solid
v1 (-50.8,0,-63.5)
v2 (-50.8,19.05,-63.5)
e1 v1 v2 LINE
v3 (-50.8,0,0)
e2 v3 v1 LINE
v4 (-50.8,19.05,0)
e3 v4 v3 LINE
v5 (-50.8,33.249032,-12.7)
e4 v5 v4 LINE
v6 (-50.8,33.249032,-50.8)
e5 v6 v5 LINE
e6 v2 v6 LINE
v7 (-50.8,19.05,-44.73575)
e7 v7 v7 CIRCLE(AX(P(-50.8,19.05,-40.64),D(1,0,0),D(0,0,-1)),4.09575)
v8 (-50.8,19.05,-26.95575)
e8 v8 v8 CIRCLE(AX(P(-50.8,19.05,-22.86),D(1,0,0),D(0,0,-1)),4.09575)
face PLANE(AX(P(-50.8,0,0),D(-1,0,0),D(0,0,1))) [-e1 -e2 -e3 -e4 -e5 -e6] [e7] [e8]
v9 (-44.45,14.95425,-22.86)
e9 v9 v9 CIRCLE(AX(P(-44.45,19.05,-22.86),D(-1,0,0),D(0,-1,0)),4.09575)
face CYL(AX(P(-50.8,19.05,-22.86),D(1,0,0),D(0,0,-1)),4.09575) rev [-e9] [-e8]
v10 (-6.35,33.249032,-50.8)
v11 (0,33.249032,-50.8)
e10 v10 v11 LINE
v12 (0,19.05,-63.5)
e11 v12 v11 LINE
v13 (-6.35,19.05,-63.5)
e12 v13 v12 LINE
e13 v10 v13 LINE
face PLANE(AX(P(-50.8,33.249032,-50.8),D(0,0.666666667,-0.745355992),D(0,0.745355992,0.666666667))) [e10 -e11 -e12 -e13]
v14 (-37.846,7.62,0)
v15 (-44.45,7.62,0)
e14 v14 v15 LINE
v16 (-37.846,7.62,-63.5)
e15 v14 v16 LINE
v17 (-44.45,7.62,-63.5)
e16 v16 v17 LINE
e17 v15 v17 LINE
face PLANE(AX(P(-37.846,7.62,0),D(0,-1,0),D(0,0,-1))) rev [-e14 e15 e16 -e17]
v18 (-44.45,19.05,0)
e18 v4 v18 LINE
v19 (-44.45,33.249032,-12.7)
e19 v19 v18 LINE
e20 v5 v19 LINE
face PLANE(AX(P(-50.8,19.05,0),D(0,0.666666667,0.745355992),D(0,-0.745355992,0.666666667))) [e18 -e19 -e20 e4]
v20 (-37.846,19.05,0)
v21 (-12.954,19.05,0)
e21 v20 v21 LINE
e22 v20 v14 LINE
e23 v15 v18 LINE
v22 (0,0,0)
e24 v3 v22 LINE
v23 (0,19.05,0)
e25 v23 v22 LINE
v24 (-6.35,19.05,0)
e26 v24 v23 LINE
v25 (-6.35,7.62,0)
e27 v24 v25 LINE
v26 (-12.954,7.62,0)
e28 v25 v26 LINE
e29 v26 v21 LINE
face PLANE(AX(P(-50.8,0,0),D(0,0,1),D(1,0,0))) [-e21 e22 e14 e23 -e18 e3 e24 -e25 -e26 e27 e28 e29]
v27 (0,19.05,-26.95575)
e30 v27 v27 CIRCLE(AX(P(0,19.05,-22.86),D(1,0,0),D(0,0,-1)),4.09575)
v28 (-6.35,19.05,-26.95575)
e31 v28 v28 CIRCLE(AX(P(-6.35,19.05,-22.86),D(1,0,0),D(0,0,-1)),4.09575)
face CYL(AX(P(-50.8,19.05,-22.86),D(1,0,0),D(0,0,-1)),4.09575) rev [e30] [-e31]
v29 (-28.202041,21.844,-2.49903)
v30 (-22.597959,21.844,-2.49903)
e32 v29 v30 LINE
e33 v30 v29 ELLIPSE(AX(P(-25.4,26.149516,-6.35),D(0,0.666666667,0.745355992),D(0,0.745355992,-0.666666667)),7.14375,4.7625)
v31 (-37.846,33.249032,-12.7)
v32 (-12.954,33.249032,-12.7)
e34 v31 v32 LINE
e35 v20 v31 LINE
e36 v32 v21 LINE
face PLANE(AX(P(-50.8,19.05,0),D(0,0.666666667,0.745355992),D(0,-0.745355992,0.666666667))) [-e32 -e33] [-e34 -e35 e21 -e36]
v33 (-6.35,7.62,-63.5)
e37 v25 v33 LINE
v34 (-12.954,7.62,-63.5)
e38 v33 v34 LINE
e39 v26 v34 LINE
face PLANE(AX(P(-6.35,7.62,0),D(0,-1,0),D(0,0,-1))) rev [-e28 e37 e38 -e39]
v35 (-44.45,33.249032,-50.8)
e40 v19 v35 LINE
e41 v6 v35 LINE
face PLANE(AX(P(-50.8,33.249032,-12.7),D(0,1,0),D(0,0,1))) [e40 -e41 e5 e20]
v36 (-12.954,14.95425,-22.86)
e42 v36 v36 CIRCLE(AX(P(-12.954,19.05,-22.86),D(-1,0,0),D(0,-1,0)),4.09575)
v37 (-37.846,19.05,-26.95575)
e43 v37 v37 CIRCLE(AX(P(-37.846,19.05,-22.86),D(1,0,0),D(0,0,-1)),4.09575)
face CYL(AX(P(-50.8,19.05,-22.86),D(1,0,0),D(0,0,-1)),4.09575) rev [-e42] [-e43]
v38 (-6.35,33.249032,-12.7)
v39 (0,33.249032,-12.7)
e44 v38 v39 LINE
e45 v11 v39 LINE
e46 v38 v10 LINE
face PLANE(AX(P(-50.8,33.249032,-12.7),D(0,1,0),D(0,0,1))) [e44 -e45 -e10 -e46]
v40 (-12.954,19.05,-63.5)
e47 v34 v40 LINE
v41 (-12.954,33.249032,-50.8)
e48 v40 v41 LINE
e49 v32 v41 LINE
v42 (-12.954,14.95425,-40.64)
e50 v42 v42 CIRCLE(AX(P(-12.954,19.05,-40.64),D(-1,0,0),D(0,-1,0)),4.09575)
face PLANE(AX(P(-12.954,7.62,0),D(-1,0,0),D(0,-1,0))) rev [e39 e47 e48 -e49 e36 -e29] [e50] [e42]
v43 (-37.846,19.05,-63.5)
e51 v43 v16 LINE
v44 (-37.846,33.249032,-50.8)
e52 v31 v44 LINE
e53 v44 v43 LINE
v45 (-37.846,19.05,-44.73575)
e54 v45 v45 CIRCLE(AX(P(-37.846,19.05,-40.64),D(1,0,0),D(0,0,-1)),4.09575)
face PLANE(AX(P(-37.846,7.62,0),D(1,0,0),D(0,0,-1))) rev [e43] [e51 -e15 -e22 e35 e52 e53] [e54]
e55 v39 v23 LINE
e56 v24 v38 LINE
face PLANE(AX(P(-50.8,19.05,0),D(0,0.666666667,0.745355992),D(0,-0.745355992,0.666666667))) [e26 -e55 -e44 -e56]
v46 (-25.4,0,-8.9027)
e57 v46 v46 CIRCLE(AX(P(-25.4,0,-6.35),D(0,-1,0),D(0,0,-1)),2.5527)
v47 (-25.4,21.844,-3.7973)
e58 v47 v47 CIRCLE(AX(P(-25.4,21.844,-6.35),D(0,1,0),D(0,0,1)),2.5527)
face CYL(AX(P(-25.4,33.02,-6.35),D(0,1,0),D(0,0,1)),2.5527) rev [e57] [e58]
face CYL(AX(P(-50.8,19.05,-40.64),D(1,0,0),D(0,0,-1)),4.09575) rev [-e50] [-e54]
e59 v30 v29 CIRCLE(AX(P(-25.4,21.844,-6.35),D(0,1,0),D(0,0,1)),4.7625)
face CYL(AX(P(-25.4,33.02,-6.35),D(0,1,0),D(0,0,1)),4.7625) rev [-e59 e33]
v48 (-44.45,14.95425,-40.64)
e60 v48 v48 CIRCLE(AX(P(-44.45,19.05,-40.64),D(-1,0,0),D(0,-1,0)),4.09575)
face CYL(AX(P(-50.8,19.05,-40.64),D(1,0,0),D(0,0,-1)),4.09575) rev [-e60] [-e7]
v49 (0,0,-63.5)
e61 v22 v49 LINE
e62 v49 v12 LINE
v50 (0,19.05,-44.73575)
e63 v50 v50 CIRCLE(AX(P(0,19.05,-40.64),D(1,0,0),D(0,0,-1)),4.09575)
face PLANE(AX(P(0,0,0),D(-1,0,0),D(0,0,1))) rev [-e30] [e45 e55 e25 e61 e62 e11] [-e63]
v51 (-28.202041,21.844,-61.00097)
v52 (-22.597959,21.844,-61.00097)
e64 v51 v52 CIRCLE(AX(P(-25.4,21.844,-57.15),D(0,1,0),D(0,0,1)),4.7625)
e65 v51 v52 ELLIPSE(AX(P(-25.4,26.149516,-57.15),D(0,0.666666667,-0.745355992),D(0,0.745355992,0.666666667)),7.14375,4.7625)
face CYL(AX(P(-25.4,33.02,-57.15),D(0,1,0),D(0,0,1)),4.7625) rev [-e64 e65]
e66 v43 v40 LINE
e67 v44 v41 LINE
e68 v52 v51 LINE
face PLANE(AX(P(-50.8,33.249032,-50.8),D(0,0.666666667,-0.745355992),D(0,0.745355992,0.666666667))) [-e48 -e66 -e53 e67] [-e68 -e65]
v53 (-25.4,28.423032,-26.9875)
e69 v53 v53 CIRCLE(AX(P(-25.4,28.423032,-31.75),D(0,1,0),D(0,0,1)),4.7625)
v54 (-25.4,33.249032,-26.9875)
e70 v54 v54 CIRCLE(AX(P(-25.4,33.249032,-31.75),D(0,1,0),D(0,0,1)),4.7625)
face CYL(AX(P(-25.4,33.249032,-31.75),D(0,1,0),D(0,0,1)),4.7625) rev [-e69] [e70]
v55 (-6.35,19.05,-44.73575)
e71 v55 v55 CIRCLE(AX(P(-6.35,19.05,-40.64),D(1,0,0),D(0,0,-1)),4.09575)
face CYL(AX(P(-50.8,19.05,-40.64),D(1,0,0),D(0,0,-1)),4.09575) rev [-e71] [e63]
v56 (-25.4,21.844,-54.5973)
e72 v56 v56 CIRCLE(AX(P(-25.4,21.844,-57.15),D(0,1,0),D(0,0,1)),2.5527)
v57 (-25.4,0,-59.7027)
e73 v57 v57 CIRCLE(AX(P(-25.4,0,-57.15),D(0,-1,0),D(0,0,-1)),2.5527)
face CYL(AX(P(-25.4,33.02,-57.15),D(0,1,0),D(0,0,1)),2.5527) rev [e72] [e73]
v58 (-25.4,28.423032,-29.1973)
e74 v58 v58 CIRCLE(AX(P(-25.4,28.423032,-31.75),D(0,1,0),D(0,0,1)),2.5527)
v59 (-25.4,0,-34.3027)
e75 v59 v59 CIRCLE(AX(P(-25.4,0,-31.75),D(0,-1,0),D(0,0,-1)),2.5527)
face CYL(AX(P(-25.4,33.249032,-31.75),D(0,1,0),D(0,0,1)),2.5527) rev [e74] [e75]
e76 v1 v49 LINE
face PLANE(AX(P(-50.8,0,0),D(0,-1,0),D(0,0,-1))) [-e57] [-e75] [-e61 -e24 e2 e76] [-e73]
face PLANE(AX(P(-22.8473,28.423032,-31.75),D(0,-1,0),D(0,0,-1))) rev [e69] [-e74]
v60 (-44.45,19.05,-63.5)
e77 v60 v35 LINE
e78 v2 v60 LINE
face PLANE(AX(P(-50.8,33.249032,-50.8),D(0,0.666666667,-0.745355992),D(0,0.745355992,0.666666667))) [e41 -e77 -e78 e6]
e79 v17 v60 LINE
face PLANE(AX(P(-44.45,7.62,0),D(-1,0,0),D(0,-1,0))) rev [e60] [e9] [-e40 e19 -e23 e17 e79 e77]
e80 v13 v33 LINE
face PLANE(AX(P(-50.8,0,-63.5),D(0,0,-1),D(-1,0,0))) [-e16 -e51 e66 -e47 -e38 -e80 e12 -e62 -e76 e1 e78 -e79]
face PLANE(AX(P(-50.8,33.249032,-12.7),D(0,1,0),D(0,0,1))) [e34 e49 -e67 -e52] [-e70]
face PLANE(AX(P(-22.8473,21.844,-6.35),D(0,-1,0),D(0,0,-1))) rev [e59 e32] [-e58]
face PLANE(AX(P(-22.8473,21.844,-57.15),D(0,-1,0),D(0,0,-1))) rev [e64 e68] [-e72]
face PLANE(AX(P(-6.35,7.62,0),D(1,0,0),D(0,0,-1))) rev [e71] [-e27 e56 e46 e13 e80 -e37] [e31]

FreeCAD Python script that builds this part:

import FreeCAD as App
import Part
import Sketcher
from FreeCAD import Vector
Q = App.Units.Quantity


def add_polygon(sketch, points):
    """Adds a closed chain of lines whose ends are joined by coincident constraints."""
    first, n = sketch.GeometryCount, len(points)
    for a, b in zip(points, points[1:] + points[:1]):
        sketch.addGeometry(Part.LineSegment(App.Vector(*a, 0), App.Vector(*b, 0)), False)
    for i in range(n):
        sketch.addConstraint(Sketcher.Constraint("Coincident", first + i, 2, first + (i + 1) % n, 1))

doc = App.newDocument("Part")
body = doc.addObject("PartDesign::Body", "Body")

# Sketch on YZ plane
sketch1 = body.newObject("Sketcher::SketchObject", "Sketch")
sketch1.AttachmentSupport = (doc.getObject("YZ_Plane"), [""])
sketch1.MapMode = "FlatFace"
add_polygon(sketch1, [(6, 0), (0, 0), (0, -64), (6, -64)])  # lines 0-3
sketch1.addConstraint(Sketcher.Constraint("Horizontal", 0))
sketch1.addConstraint(Sketcher.Constraint("Vertical", 1))
sketch1.addConstraint(Sketcher.Constraint("Horizontal", 2))
sketch1.addConstraint(Sketcher.Constraint("Vertical", 3))
sketch1.addConstraint(Sketcher.Constraint("Coincident", 0, 2, -1, 1))
sketch1.addConstraint(Sketcher.Constraint("DistanceY", 1, 2, 1, 1, Q("2.5 in")))
sketch1.addConstraint(Sketcher.Constraint("DistanceX", 0, 2, 0, 1, Q("0.25 in")))
pad1 = body.newObject("PartDesign::Pad", "Pad")
pad1.Profile = sketch1
pad1.Length = Q("2 in")
pad1.Reversed = True

# Sketch on YZ plane
sketch2 = body.newObject("Sketcher::SketchObject", "Sketch001")
sketch2.AttachmentSupport = (doc.getObject("YZ_Plane"), [""])
sketch2.MapMode = "FlatFace"
add_polygon(sketch2, [(19, 0), (6, 0), (6, -64), (19, -64), (33, -51), (33, -13)])  # lines 0-5
sketch2.addConstraint(Sketcher.Constraint("Horizontal", 0))
sketch2.addConstraint(Sketcher.Constraint("Vertical", 1))
sketch2.addConstraint(Sketcher.Constraint("Horizontal", 2))
sketch2.addConstraint(Sketcher.Constraint("Vertical", 4))
sketch2.addConstraint(Sketcher.Constraint("PointOnObject", 0, 2, -1))
sketch2.addConstraint(Sketcher.Constraint("Vertical", 2, 2, 5, 2))
sketch2.addConstraint(Sketcher.Constraint("Equal", 3, 5))
sketch2.addConstraint(Sketcher.Constraint("DistanceX", 0, 2, 0, 1, Q("0.5 in")))
sketch2.addConstraint(Sketcher.Constraint("DistanceY", 1, 2, 1, 1, Q("2.5 in")))
sketch2.addConstraint(Sketcher.Constraint("DistanceY", 4, 1, 4, 2, Q("1.5 in")))
sketch2.addConstraint(Sketcher.Constraint("Distance", 3, Q("0.75 in")))
sketch2.addConstraint(Sketcher.Constraint("DistanceX", -1, 1, 0, 2, Q("0.25 in")))
pad2 = body.newObject("PartDesign::Pad", "Pad001")
pad2.Profile = sketch2
pad2.Length = Q("2 in")
pad2.Reversed = True

# Sketch on XY plane
sketch3 = body.newObject("Sketcher::SketchObject", "Sketch002")
sketch3.AttachmentSupport = (doc.getObject("XY_Plane"), [""])
sketch3.MapMode = "FlatFace"
sketch3.AttachmentOffset = App.Placement(Vector(0, 0, -2.5 * 25.4), App.Rotation())
add_polygon(sketch3, [(-6, 33), (-6, 8), (-13, 8), (-13, 33)])  # lines 0-3
sketch3.addConstraint(Sketcher.Constraint("Vertical", 0))
sketch3.addConstraint(Sketcher.Constraint("Horizontal", 1))
sketch3.addConstraint(Sketcher.Constraint("Vertical", 2))
sketch3.addConstraint(Sketcher.Constraint("Horizontal", 3))
sketch3.addConstraint(Sketcher.Constraint("DistanceX", 1, 2, 1, 1, Q("0.26 in")))
sketch3.addConstraint(Sketcher.Constraint("DistanceY", -1, 1, 0, 2, Q("0.3 in")))
sketch3.addConstraint(Sketcher.Constraint("DistanceX", 0, 2, -1, 1, Q("0.25 in")))
sketch3.addConstraint(Sketcher.Constraint("DistanceY", 0, 2, 0, 1, Q("25.629032 mm")))
pocket1 = body.newObject("PartDesign::Pocket", "Pocket")
pocket1.Profile = sketch3
pocket1.Type = "ThroughAll"
pocket1.Reversed = True
doc.recompute()

linearpattern = body.newObject("PartDesign::LinearPattern", "LinearPattern")
linearpattern.Originals = [pocket1]
linearpattern.Direction = (doc.getObject("X_Axis"), [""])
linearpattern.Mode = "offset"
linearpattern.Offset = Q("1.24 in")
linearpattern.Occurrences = 2
linearpattern.Reversed = True
body.Tip = linearpattern

# Sketch on YZ plane
sketch4 = body.newObject("Sketcher::SketchObject", "Sketch003")
sketch4.AttachmentSupport = (doc.getObject("YZ_Plane"), [""])
sketch4.MapMode = "FlatFace"
sketch4.addGeometry(Part.Circle(Vector(19.1, -22.9, 0), Vector(0, 0, 1), 4.1), False)
sketch4.addGeometry(Part.Circle(Vector(19.1, -40.6, 0), Vector(0, 0, 1), 4.1), False)
sketch4.addConstraint(Sketcher.Constraint("Equal", 0, 1))
sketch4.addConstraint(Sketcher.Constraint("Vertical", 0, 3, 1, 3))
sketch4.addConstraint(Sketcher.Constraint("Diameter", 0, Q("0.3225 in")))
sketch4.addConstraint(Sketcher.Constraint("DistanceY", 0, 3, -1, 1, Q("0.9 in")))
sketch4.addConstraint(Sketcher.Constraint("DistanceY", 1, 3, -1, 1, Q("1.6 in")))
sketch4.addConstraint(Sketcher.Constraint("DistanceX", -1, 1, 0, 3, Q("0.75 in")))
pocket2 = body.newObject("PartDesign::Pocket", "Pocket001")
pocket2.Profile = sketch4
pocket2.Type = "ThroughAll"

# Sketch on XZ plane
sketch5 = body.newObject("Sketcher::SketchObject", "Sketch004")
sketch5.AttachmentSupport = (doc.getObject("XZ_Plane"), [""])
sketch5.MapMode = "FlatFace"
sketch5.AttachmentOffset = App.Placement(Vector(0, 0, -33.249032), App.Rotation())
sketch5.addGeometry(Part.Circle(Vector(-25.4, -31.8, 0), Vector(0, 0, 1), 2.6), False)
sketch5.addConstraint(Sketcher.Constraint("Diameter", 0, Q("0.201 in")))
sketch5.addConstraint(Sketcher.Constraint("DistanceX", 0, 3, -1, 1, Q("1 in")))
sketch5.addConstraint(Sketcher.Constraint("DistanceY", 0, 3, -1, 1, Q("1.25 in")))
doc.recompute()
hole = body.newObject("PartDesign::Hole", "Hole")
hole.Profile = sketch5
hole.ThreadType = "None"
hole.Diameter = Q("0.201 in")
hole.DepthType = "ThroughAll"
hole.HoleCutType = "Counterbore"
hole.HoleCutDiameter = Q("0.375 in")
hole.HoleCutDepth = Q("0.19 in")
hole.Reversed = True

# Sketch on XZ plane
sketch6 = body.newObject("Sketcher::SketchObject", "Sketch005")
sketch6.AttachmentSupport = (doc.getObject("XZ_Plane"), [""])
sketch6.MapMode = "FlatFace"
sketch6.AttachmentOffset = App.Placement(Vector(0, 0, -1.3 * 25.4), App.Rotation())
sketch6.addGeometry(Part.Circle(Vector(-25.4, -6.3, 0), Vector(0, 0, 1), 2.6), False)
sketch6.addGeometry(Part.Circle(Vector(-25.4, -57.1, 0), Vector(0, 0, 1), 2.6), False)
sketch6.addConstraint(Sketcher.Constraint("Equal", 0, 1))
sketch6.addConstraint(Sketcher.Constraint("Vertical", 0, 3, 1, 3))
sketch6.addConstraint(Sketcher.Constraint("Diameter", 0, Q("0.201 in")))
sketch6.addConstraint(Sketcher.Constraint("DistanceX", 0, 3, -1, 1, Q("1 in")))
sketch6.addConstraint(Sketcher.Constraint("DistanceY", 1, 3, 0, 3, Q("2 in")))
sketch6.addConstraint(Sketcher.Constraint("DistanceY", 0, 3, -1, 1, Q("0.25 in")))
doc.recompute()
hole2 = body.newObject("PartDesign::Hole", "Hole001")
hole2.Profile = sketch6
hole2.ThreadType = "None"
hole2.Diameter = Q("0.201 in")
hole2.DepthType = "ThroughAll"
hole2.HoleCutType = "Counterbore"
hole2.HoleCutDiameter = Q("0.375 in")
hole2.HoleCutDepth = Q("0.44 in")
hole2.Reversed = True

doc.recompute()
